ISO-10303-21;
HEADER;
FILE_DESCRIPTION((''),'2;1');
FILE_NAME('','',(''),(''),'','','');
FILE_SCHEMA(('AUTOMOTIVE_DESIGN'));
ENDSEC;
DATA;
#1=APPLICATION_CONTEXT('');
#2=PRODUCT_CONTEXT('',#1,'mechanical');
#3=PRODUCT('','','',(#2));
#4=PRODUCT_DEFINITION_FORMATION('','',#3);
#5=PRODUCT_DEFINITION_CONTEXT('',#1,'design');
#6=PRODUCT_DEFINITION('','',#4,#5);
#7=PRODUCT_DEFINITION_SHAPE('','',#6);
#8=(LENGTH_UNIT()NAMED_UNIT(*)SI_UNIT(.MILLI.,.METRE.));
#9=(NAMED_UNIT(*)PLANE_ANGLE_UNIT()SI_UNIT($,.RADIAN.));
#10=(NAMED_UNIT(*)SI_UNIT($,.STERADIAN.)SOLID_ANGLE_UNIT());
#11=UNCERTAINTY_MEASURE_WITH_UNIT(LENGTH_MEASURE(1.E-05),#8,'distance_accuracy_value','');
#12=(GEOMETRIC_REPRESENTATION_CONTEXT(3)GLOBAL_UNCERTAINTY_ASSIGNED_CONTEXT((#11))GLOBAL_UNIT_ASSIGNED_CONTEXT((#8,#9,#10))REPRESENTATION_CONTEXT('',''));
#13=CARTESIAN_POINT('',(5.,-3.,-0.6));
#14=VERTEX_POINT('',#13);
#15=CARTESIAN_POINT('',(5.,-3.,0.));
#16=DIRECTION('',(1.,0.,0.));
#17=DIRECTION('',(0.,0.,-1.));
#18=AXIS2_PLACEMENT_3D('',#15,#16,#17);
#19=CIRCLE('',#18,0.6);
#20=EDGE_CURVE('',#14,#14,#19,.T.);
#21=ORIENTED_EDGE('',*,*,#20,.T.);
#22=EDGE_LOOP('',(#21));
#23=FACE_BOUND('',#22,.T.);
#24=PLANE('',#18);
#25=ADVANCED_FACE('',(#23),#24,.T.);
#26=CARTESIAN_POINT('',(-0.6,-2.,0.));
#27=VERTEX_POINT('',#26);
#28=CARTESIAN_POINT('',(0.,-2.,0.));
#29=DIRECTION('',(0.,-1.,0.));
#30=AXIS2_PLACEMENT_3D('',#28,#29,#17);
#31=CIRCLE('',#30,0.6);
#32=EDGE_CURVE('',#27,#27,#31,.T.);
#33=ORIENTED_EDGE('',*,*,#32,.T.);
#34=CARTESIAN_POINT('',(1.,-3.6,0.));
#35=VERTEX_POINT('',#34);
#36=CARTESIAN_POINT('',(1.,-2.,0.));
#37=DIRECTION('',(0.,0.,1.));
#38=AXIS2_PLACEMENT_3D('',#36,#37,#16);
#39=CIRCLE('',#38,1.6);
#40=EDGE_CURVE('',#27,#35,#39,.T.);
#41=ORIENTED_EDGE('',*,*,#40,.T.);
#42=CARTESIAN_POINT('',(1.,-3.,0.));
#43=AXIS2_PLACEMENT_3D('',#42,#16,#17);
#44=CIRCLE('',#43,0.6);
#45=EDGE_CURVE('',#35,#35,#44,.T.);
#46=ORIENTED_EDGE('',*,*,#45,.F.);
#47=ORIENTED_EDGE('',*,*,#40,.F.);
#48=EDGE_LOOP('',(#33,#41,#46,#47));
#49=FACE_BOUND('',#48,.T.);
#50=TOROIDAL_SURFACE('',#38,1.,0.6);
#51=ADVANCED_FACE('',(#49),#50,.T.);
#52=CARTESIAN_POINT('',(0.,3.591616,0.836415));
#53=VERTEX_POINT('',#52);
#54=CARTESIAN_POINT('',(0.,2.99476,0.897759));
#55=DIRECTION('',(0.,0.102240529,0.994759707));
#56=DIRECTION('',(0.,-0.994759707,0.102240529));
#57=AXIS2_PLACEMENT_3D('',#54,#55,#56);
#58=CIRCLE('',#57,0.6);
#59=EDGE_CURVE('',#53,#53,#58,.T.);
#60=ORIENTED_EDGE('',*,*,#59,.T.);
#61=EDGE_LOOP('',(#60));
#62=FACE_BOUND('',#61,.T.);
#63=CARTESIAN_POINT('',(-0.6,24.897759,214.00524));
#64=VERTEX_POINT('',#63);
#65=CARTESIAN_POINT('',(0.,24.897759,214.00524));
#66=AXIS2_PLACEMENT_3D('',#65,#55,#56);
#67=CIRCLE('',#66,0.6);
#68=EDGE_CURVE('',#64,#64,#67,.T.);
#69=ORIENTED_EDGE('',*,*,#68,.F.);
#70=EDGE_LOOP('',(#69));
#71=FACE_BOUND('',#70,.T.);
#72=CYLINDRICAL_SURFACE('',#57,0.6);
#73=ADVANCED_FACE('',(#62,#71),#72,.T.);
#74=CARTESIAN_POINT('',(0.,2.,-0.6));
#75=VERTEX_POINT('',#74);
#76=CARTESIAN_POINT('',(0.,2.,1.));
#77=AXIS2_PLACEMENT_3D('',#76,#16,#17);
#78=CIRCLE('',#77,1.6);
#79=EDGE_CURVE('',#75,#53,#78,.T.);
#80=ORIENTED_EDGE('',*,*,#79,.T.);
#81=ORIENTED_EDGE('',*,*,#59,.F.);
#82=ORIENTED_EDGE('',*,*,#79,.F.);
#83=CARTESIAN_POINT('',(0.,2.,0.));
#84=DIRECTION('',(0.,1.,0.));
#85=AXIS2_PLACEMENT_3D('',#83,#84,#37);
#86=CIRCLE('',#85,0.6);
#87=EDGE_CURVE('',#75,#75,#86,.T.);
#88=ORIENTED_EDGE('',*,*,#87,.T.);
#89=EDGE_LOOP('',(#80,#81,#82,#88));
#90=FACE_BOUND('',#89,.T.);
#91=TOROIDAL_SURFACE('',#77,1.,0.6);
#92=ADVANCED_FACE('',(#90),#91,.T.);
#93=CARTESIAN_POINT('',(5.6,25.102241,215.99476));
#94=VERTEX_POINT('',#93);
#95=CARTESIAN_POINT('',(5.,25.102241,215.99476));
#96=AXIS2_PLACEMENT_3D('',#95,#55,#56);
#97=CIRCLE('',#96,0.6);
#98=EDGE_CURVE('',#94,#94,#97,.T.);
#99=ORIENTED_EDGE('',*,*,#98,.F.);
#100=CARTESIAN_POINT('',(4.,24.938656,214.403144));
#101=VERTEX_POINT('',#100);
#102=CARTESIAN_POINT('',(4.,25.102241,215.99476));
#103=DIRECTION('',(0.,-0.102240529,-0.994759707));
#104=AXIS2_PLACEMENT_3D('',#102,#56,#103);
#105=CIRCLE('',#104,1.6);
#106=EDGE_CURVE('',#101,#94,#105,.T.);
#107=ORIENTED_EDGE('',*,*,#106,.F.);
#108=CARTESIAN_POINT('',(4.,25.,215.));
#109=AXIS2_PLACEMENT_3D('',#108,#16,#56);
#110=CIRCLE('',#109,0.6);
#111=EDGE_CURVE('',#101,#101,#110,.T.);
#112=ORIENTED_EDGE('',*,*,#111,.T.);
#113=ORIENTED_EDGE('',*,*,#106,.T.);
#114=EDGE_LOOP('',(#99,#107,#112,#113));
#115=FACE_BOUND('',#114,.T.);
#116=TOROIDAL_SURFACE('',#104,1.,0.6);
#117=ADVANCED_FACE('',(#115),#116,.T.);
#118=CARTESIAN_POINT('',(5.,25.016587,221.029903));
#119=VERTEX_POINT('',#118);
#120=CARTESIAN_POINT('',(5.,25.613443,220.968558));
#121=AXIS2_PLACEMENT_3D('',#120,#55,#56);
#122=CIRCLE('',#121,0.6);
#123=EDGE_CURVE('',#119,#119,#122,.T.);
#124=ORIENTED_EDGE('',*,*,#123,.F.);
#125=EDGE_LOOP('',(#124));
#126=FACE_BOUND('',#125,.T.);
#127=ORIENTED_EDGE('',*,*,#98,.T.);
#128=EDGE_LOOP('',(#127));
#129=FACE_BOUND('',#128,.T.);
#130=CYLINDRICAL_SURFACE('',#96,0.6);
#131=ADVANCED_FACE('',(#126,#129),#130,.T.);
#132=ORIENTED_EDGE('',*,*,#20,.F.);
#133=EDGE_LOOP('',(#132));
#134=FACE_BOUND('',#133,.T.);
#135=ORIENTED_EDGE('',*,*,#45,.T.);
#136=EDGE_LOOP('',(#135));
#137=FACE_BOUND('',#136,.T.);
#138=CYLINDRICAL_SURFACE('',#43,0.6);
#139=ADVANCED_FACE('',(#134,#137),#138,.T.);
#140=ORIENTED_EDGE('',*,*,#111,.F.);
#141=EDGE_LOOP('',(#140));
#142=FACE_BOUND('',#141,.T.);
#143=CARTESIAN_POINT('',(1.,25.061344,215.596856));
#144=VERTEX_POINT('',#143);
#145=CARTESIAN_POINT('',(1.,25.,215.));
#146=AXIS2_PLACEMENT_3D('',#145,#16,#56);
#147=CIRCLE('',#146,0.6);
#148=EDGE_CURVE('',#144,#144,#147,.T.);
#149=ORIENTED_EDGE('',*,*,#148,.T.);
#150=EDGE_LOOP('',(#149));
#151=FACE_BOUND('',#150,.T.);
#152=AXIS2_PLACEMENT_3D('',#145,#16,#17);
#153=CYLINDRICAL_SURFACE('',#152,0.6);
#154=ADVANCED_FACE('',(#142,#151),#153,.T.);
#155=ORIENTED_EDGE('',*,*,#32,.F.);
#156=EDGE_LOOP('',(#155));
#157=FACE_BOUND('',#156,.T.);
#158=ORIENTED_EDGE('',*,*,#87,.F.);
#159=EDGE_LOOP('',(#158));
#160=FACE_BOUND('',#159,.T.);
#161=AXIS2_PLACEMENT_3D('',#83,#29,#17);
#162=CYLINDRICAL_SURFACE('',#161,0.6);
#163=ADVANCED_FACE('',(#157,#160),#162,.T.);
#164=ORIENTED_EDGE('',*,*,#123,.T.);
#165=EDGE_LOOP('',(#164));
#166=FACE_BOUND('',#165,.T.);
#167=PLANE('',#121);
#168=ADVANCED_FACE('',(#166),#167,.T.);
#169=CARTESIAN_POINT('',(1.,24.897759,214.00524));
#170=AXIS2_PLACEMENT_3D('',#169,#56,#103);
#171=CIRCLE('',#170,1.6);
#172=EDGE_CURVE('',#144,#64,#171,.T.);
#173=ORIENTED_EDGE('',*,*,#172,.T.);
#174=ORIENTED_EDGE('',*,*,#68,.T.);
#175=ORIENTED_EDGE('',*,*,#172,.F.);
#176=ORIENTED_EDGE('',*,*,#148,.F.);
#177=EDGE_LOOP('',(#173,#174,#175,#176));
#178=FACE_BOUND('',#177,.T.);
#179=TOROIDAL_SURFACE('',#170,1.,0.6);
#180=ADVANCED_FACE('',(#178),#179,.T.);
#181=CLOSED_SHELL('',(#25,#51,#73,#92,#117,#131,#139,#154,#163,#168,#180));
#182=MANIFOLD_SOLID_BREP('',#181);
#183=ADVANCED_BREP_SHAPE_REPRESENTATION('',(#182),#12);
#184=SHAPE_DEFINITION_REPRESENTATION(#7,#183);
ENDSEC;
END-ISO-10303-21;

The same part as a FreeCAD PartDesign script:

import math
import FreeCAD as App
import Part
import Sketcher

V = App.Vector

doc = App.newDocument("Part")
params = doc.addObject("Spreadsheet::Sheet", "Params")
for row, (alias, value) in enumerate([
    ("sketch1_diameter", "1.2 mm"),
    ("sketch2_radius", "1 mm"),
    ("sketch2_width", "2 mm"),
    ("sketch3_diameter", "1.2 mm"),
    ("sketch4_radius", "1 mm"),
    ("sketch4_width", "4 mm"),
    ("sketch4_height", "2 mm"),
    ("sketch5_diameter", "1.2 mm"),
    ("sketch6_radius", "1 mm"),
    ("sketch6_width", "5 mm"),
    ("sketch6_height", "3 mm"),
], start=1):
    params.set(f"A{row}", alias)
    params.set(f"B{row}", "=" + value)
    params.setAlias(f"B{row}", alias)

body = doc.addObject("PartDesign::Body", "Body")

# Sketch on XZ plane
sketch1 = body.newObject("Sketcher::SketchObject", "Sketch")
sketch1.AttachmentSupport = (doc.getObject("XZ_Plane"), [""])
sketch1.MapMode = "FlatFace"
sketch1.addGeometry(Part.Circle(V(0, 0, 0), V(0, 0, 1), 0.6), False)
sketch1.addConstraint([
    Sketcher.Constraint("Coincident", 0, 3, -1, 1),
    Sketcher.Constraint("Diameter", 0, 1.2),
])
sketch1.setExpression("Constraints[1]", "Params.sketch1_diameter")

# Sketch on YZ plane
sketch2 = body.newObject("Sketcher::SketchObject", "Sketch001")
sketch2.AttachmentSupport = (doc.getObject("YZ_Plane"), [""])
sketch2.MapMode = "FlatFace"
sketch2.addGeometry([
    Part.LineSegment(V(0, 0, 0), V(2, 0, 0)),
    Part.ArcOfCircle(Part.Circle(V(2, 1, 0), V(0, 0, 1), 1), math.radians(-90), math.radians(-6)),
    Part.LineSegment(V(3, 0.9, 0), V(24.9, 214, 0)),
], False)
sketch2.addConstraint([
    Sketcher.Constraint("Tangent", 0, 2, 1, 1),
    Sketcher.Constraint("Tangent", 1, 2, 2, 1),
    Sketcher.Constraint("Horizontal", 0),
    Sketcher.Constraint("Coincident", 0, 1, -1, 1),
    Sketcher.Constraint("Radius", 1, 1.0),
    Sketcher.Constraint("DistanceX", 0, 1, 0, 2, 2.0),
    Sketcher.Constraint("DistanceX", 1, 2, 2, 2, 21.903),
    Sketcher.Constraint("Distance", 2, 214.230109),
])
sketch2.setExpression("Constraints[4]", "Params.sketch2_radius")
sketch2.setExpression("Constraints[5]", "Params.sketch2_width")
doc.recompute()

additivepipe = body.newObject("PartDesign::AdditivePipe", "AdditivePipe")
additivepipe.Profile = sketch1
additivepipe.Spine = (sketch2, ["Edge1", "Edge2", "Edge3"])

# Sketch on XZ plane
sketch3 = body.newObject("Sketcher::SketchObject", "Sketch002")
sketch3.AttachmentSupport = (doc.getObject("XZ_Plane"), [""])
sketch3.MapMode = "FlatFace"
sketch3.addGeometry(Part.Circle(V(0, 0, 0), V(0, 0, 1), 0.6), False)
sketch3.addConstraint([
    Sketcher.Constraint("Coincident", 0, 3, -1, 1),
    Sketcher.Constraint("Diameter", 0, 1.2),
])
sketch3.setExpression("Constraints[1]", "Params.sketch3_diameter")

# Sketch on XY plane
sketch4 = body.newObject("Sketcher::SketchObject", "Sketch003")
sketch4.AttachmentSupport = (doc.getObject("XY_Plane"), [""])
sketch4.MapMode = "FlatFace"
sketch4.addGeometry([
    Part.LineSegment(V(0, 0, 0), V(0, -2, 0)),
    Part.ArcOfCircle(Part.Circle(V(1, -2, 0), V(0, 0, 1), 1), math.radians(-180), math.radians(-90)),
    Part.LineSegment(V(1, -3, 0), V(5, -3, 0)),
], False)
sketch4.addConstraint([
    Sketcher.Constraint("Tangent", 0, 2, 1, 1),
    Sketcher.Constraint("Tangent", 1, 2, 2, 1),
    Sketcher.Constraint("Vertical", 0),
    Sketcher.Constraint("Horizontal", 2),
    Sketcher.Constraint("Coincident", 0, 1, -1, 1),
    Sketcher.Constraint("Radius", 1, 1.0),
    Sketcher.Constraint("DistanceX", 2, 1, 2, 2, 4.0),
    Sketcher.Constraint("DistanceY", 0, 2, 0, 1, 2.0),
])
sketch4.setExpression("Constraints[5]", "Params.sketch4_radius")
sketch4.setExpression("Constraints[6]", "Params.sketch4_width")
sketch4.setExpression("Constraints[7]", "Params.sketch4_height")
doc.recompute()

additivepipe2 = body.newObject("PartDesign::AdditivePipe", "AdditivePipe001")
additivepipe2.Profile = sketch3
additivepipe2.Spine = (sketch4, ["Edge1", "Edge2", "Edge3"])

# Sketch on an angled plane
sketch5 = body.newObject("Sketcher::SketchObject", "Sketch004")
sketch5.Placement = App.Placement(V(0, 22.025611, 214.300437), App.Rotation(V(1, 0, 0), V(0, 0.994759707, -0.102240529), V(0, 0.102240529, 0.994759707), "ZXY"))
sketch5.addGeometry(Part.Circle(V(0, 2.9, 0), V(0, 0, 1), 0.6), False)
sketch5.addConstraint([
    Sketcher.Constraint("PointOnObject", 0, 3, -2),
    Sketcher.Constraint("Diameter", 0, 1.2),
    Sketcher.Constraint("DistanceY", -1, 1, 0, 3, 2.887279),
])
sketch5.setExpression("Constraints[1]", "Params.sketch5_diameter")

# Sketch on an angled plane
sketch6 = body.newObject("Sketcher::SketchObject", "Sketch005")
sketch6.Placement = App.Placement(V(0, 2.872149, -0.295197), App.Rotation(V(0, -0.102240529, -0.994759707), V(1, 0, 0), V(0, -0.994759707, 0.102240529), "ZXY"))
sketch6.addGeometry([
    Part.LineSegment(V(-222.4, 5, 0), V(-217.4, 5, 0)),
    Part.ArcOfCircle(Part.Circle(V(-217.4, 4, 0), V(0, 0, 1), 1), math.radians(0), math.radians(90)),
    Part.LineSegment(V(-216.4, 4, 0), V(-216.4, 1, 0)),
    Part.ArcOfCircle(Part.Circle(V(-215.4, 1, 0), V(0, 0, 1), 1), math.radians(-180), math.radians(-90)),
], False)
sketch6.addConstraint([
    Sketcher.Constraint("Tangent", 0, 2, 1, 2),
    Sketcher.Constraint("Tangent", 1, 1, 2, 1),
    Sketcher.Constraint("Tangent", 2, 2, 3, 1),
    Sketcher.Constraint("Horizontal", 0),
    Sketcher.Constraint("Vertical", 2),
    Sketcher.Constraint("Equal", 1, 3),
    Sketcher.Constraint("PointOnObject", 3, 2, -1),
    Sketcher.Constraint("Radius", 1, 1.0),
    Sketcher.Constraint("DistanceX", 0, 1, 0, 2, 5.0),
    Sketcher.Constraint("DistanceY", 2, 2, 2, 1, 3.0),
    Sketcher.Constraint("DistanceX", 2, 2, 3, 2, 1.0),
    Sketcher.Constraint("DistanceX", 1, 3, -1, 1, 217.42935),
])
sketch6.setExpression("Constraints[7]", "Params.sketch6_radius")
sketch6.setExpression("Constraints[8]", "Params.sketch6_width")
sketch6.setExpression("Constraints[9]", "Params.sketch6_height")
doc.recompute()

additivepipe3 = body.newObject("PartDesign::AdditivePipe", "AdditivePipe002")
additivepipe3.Profile = sketch5
additivepipe3.Spine = (sketch6, ["Edge1", "Edge2", "Edge3", "Edge4"])

doc.recompute()
